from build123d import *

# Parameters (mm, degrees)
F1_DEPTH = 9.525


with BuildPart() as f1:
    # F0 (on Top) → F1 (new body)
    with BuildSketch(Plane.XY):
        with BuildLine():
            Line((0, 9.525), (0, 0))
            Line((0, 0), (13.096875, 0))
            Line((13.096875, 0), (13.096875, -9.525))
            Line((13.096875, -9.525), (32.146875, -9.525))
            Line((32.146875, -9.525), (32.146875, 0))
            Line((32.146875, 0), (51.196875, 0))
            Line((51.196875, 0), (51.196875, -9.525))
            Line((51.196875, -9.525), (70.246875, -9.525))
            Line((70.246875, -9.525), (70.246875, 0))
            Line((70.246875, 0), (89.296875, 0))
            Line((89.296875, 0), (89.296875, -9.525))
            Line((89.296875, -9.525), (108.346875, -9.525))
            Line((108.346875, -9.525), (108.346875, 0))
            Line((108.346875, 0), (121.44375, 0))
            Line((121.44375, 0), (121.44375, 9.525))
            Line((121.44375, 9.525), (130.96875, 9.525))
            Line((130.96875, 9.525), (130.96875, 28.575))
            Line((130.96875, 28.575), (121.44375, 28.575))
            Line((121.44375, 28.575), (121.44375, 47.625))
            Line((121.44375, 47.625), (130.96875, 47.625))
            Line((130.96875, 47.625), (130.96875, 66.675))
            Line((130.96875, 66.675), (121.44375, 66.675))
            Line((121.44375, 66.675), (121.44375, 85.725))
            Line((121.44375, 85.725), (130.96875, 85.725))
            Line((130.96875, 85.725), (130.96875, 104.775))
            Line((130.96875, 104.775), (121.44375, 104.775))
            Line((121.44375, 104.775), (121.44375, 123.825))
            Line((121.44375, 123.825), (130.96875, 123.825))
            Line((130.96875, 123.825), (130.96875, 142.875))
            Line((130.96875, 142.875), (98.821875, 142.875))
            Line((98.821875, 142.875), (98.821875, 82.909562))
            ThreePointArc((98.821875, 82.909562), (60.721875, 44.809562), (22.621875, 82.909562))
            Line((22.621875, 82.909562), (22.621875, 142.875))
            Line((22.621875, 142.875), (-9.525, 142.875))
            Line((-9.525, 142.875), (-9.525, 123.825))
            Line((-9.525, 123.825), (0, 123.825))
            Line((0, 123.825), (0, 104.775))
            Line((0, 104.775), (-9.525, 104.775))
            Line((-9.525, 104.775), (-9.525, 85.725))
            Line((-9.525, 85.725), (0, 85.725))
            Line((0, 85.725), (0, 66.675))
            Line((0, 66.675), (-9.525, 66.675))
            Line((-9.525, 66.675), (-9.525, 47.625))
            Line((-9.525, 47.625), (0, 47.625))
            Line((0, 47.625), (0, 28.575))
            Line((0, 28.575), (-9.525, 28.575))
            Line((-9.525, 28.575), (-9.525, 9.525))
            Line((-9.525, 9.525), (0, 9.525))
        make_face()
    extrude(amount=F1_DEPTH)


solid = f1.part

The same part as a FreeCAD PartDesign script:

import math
import FreeCAD as App
import Part
import Sketcher

V = App.Vector
Q = App.Units.Quantity

doc = App.newDocument("Part")
params = doc.addObject("Spreadsheet::Sheet", "Params")
for row, (alias, value) in enumerate([
    ("sketch1_radius", "1.5 in"),
    ("sketch1_width", "0.75 in"),
    ("sketch1_width2", "0.515625 in"),
    ("pad1_length", "0.375 in"),
], start=1):
    params.set(f"A{row}", alias)
    params.set(f"B{row}", "=" + value)
    params.setAlias(f"B{row}", alias)

body = doc.addObject("PartDesign::Body", "Body")

# Sketch on XY plane
sketch1 = body.newObject("Sketcher::SketchObject", "Sketch")
sketch1.AttachmentSupport = (doc.getObject("XY_Plane"), [""])
sketch1.MapMode = "FlatFace"
sketch1.addGeometry(Part.LineSegment(V(0, 9.525, 0), V(0, 0, 0)), False)
sketch1.addGeometry(Part.LineSegment(V(0, 0, 0), V(13.096875, 0, 0)), False)
sketch1.addGeometry(Part.LineSegment(V(13.096875, 0, 0), V(13.096875, -9.525, 0)), False)
sketch1.addGeometry(Part.LineSegment(V(13.096875, -9.525, 0), V(32.146875, -9.525, 0)), False)
sketch1.addGeometry(Part.LineSegment(V(32.146875, -9.525, 0), V(32.146875, 0, 0)), False)
sketch1.addGeometry(Part.LineSegment(V(32.146875, 0, 0), V(51.196875, 0, 0)), False)
sketch1.addGeometry(Part.LineSegment(V(51.196875, 0, 0), V(51.196875, -9.525, 0)), False)
sketch1.addGeometry(Part.LineSegment(V(51.196875, -9.525, 0), V(70.246875, -9.525, 0)), False)
sketch1.addGeometry(Part.LineSegment(V(70.246875, -9.525, 0), V(70.246875, 0, 0)), False)
sketch1.addGeometry(Part.LineSegment(V(70.246875, 0, 0), V(89.296875, 0, 0)), False)
sketch1.addGeometry(Part.LineSegment(V(89.296875, 0, 0), V(89.296875, -9.525, 0)), False)
sketch1.addGeometry(Part.LineSegment(V(89.296875, -9.525, 0), V(108.346875, -9.525, 0)), False)
sketch1.addGeometry(Part.LineSegment(V(108.346875, -9.525, 0), V(108.346875, 0, 0)), False)
sketch1.addGeometry(Part.LineSegment(V(108.346875, 0, 0), V(121.44375, 0, 0)), False)
sketch1.addGeometry(Part.LineSegment(V(121.44375, 0, 0), V(121.44375, 9.525, 0)), False)
sketch1.addGeometry(Part.LineSegment(V(121.44375, 9.525, 0), V(130.96875, 9.525, 0)), False)
sketch1.addGeometry(Part.LineSegment(V(130.96875, 9.525, 0), V(130.96875, 28.575, 0)), False)
sketch1.addGeometry(Part.LineSegment(V(130.96875, 28.575, 0), V(121.44375, 28.575, 0)), False)
sketch1.addGeometry(Part.LineSegment(V(121.44375, 28.575, 0), V(121.44375, 47.625, 0)), False)
sketch1.addGeometry(Part.LineSegment(V(121.44375, 47.625, 0), V(130.96875, 47.625, 0)), False)
sketch1.addGeometry(Part.LineSegment(V(130.96875, 47.625, 0), V(130.96875, 66.675, 0)), False)
sketch1.addGeometry(Part.LineSegment(V(130.96875, 66.675, 0), V(121.44375, 66.675, 0)), False)
sketch1.addGeometry(Part.LineSegment(V(121.44375, 66.675, 0), V(121.44375, 85.725, 0)), False)
sketch1.addGeometry(Part.LineSegment(V(121.44375, 85.725, 0), V(130.96875, 85.725, 0)), False)
sketch1.addGeometry(Part.LineSegment(V(130.96875, 85.725, 0), V(130.96875, 104.775, 0)), False)
sketch1.addGeometry(Part.LineSegment(V(130.96875, 104.775, 0), V(121.44375, 104.775, 0)), False)
sketch1.addGeometry(Part.LineSegment(V(121.44375, 104.775, 0), V(121.44375, 123.825, 0)), False)
sketch1.addGeometry(Part.LineSegment(V(121.44375, 123.825, 0), V(130.96875, 123.825, 0)), False)
sketch1.addGeometry(Part.LineSegment(V(130.96875, 123.825, 0), V(130.96875, 142.875, 0)), False)
sketch1.addGeometry(Part.LineSegment(V(130.96875, 142.875, 0), V(98.821875, 142.875, 0)), False)
sketch1.addGeometry(Part.LineSegment(V(98.821875, 142.875, 0), V(98.821875, 82.909562, 0)), False)
sketch1.addGeometry(Part.ArcOfCircle(Part.Circle(V(60.721875, 82.909562, 0), V(0, 0, 1), 38.1), math.radians(180), math.radians(360)), False)
sketch1.addGeometry(Part.LineSegment(V(22.621875, 82.909562, 0), V(22.621875, 142.875, 0)), False)
sketch1.addGeometry(Part.LineSegment(V(22.621875, 142.875, 0), V(-9.525, 142.875, 0)), False)
sketch1.addGeometry(Part.LineSegment(V(-9.525, 142.875, 0), V(-9.525, 123.825, 0)), False)
sketch1.addGeometry(Part.LineSegment(V(-9.525, 123.825, 0), V(0, 123.825, 0)), False)
sketch1.addGeometry(Part.LineSegment(V(0, 123.825, 0), V(0, 104.775, 0)), False)
sketch1.addGeometry(Part.LineSegment(V(0, 104.775, 0), V(-9.525, 104.775, 0)), False)
sketch1.addGeometry(Part.LineSegment(V(-9.525, 104.775, 0), V(-9.525, 85.725, 0)), False)
sketch1.addGeometry(Part.LineSegment(V(-9.525, 85.725, 0), V(0, 85.725, 0)), False)
sketch1.addGeometry(Part.LineSegment(V(0, 85.725, 0), V(0, 66.675, 0)), False)
sketch1.addGeometry(Part.LineSegment(V(0, 66.675, 0), V(-9.525, 66.675, 0)), False)
sketch1.addGeometry(Part.LineSegment(V(-9.525, 66.675, 0), V(-9.525, 47.625, 0)), False)
sketch1.addGeometry(Part.LineSegment(V(-9.525, 47.625, 0), V(0, 47.625, 0)), False)
sketch1.addGeometry(Part.LineSegment(V(0, 47.625, 0), V(0, 28.575, 0)), False)
sketch1.addGeometry(Part.LineSegment(V(0, 28.575, 0), V(-9.525, 28.575, 0)), False)
sketch1.addGeometry(Part.LineSegment(V(-9.525, 28.575, 0), V(-9.525, 9.525, 0)), False)
sketch1.addGeometry(Part.LineSegment(V(-9.525, 9.525, 0), V(0, 9.525, 0)), False)
sketch1.addConstraint(Sketcher.Constraint("Coincident", 0, 2, 1, 1))
sketch1.addConstraint(Sketcher.Constraint("Coincident", 1, 2, 2, 1))
sketch1.addConstraint(Sketcher.Constraint("Coincident", 2, 2, 3, 1))
sketch1.addConstraint(Sketcher.Constraint("Coincident", 3, 2, 4, 1))
sketch1.addConstraint(Sketcher.Constraint("Coincident", 4, 2, 5, 1))
sketch1.addConstraint(Sketcher.Constraint("Coincident", 5, 2, 6, 1))
sketch1.addConstraint(Sketcher.Constraint("Coincident", 6, 2, 7, 1))
sketch1.addConstraint(Sketcher.Constraint("Coincident", 7, 2, 8, 1))
sketch1.addConstraint(Sketcher.Constraint("Coincident", 8, 2, 9, 1))
sketch1.addConstraint(Sketcher.Constraint("Coincident", 9, 2, 10, 1))
sketch1.addConstraint(Sketcher.Constraint("Coincident", 10, 2, 11, 1))
sketch1.addConstraint(Sketcher.Constraint("Coincident", 11, 2, 12, 1))
sketch1.addConstraint(Sketcher.Constraint("Coincident", 12, 2, 13, 1))
sketch1.addConstraint(Sketcher.Constraint("Coincident", 13, 2, 14, 1))
sketch1.addConstraint(Sketcher.Constraint("Coincident", 14, 2, 15, 1))
sketch1.addConstraint(Sketcher.Constraint("Coincident", 15, 2, 16, 1))
sketch1.addConstraint(Sketcher.Constraint("Coincident", 16, 2, 17, 1))
sketch1.addConstraint(Sketcher.Constraint("Coincident", 17, 2, 18, 1))
sketch1.addConstraint(Sketcher.Constraint("Coincident", 18, 2, 19, 1))
sketch1.addConstraint(Sketcher.Constraint("Coincident", 19, 2, 20, 1))
sketch1.addConstraint(Sketcher.Constraint("Coincident", 20, 2, 21, 1))
sketch1.addConstraint(Sketcher.Constraint("Coincident", 21, 2, 22, 1))
sketch1.addConstraint(Sketcher.Constraint("Coincident", 22, 2, 23, 1))
sketch1.addConstraint(Sketcher.Constraint("Coincident", 23, 2, 24, 1))
sketch1.addConstraint(Sketcher.Constraint("Coincident", 24, 2, 25, 1))
sketch1.addConstraint(Sketcher.Constraint("Coincident", 25, 2, 26, 1))
sketch1.addConstraint(Sketcher.Constraint("Coincident", 26, 2, 27, 1))
sketch1.addConstraint(Sketcher.Constraint("Coincident", 27, 2, 28, 1))
sketch1.addConstraint(Sketcher.Constraint("Coincident", 28, 2, 29, 1))
sketch1.addConstraint(Sketcher.Constraint("Coincident", 29, 2, 30, 1))
sketch1.addConstraint(Sketcher.Constraint("Tangent", 30, 2, 31, 2))
sketch1.addConstraint(Sketcher.Constraint("Tangent", 31, 1, 32, 1))
sketch1.addConstraint(Sketcher.Constraint("Coincident", 32, 2, 33, 1))
sketch1.addConstraint(Sketcher.Constraint("Coincident", 33, 2, 34, 1))
sketch1.addConstraint(Sketcher.Constraint("Coincident", 34, 2, 35, 1))
sketch1.addConstraint(Sketcher.Constraint("Coincident", 35, 2, 36, 1))
sketch1.addConstraint(Sketcher.Constraint("Coincident", 36, 2, 37, 1))
sketch1.addConstraint(Sketcher.Constraint("Coincident", 37, 2, 38, 1))
sketch1.addConstraint(Sketcher.Constraint("Coincident", 38, 2, 39, 1))
sketch1.addConstraint(Sketcher.Constraint("Coincident", 39, 2, 40, 1))
sketch1.addConstraint(Sketcher.Constraint("Coincident", 40, 2, 41, 1))
sketch1.addConstraint(Sketcher.Constraint("Coincident", 41, 2, 42, 1))
sketch1.addConstraint(Sketcher.Constraint("Coincident", 42, 2, 43, 1))
sketch1.addConstraint(Sketcher.Constraint("Coincident", 43, 2, 44, 1))
sketch1.addConstraint(Sketcher.Constraint("Coincident", 44, 2, 45, 1))
sketch1.addConstraint(Sketcher.Constraint("Coincident", 45, 2, 46, 1))
sketch1.addConstraint(Sketcher.Constraint("Coincident", 46, 2, 47, 1))
sketch1.addConstraint(Sketcher.Constraint("Coincident", 47, 2, 0, 1))
sketch1.addConstraint(Sketcher.Constraint("Vertical", 0))
sketch1.addConstraint(Sketcher.Constraint("Horizontal", 1))
sketch1.addConstraint(Sketcher.Constraint("Vertical", 2))
sketch1.addConstraint(Sketcher.Constraint("Horizontal", 3))
sketch1.addConstraint(Sketcher.Constraint("Vertical", 4))
sketch1.addConstraint(Sketcher.Constraint("Horizontal", 5))
sketch1.addConstraint(Sketcher.Constraint("Vertical", 6))
sketch1.addConstraint(Sketcher.Constraint("Horizontal", 7))
sketch1.addConstraint(Sketcher.Constraint("Vertical", 8))
sketch1.addConstraint(Sketcher.Constraint("Horizontal", 9))
sketch1.addConstraint(Sketcher.Constraint("Vertical", 10))
sketch1.addConstraint(Sketcher.Constraint("Horizontal", 11))
sketch1.addConstraint(Sketcher.Constraint("Vertical", 12))
sketch1.addConstraint(Sketcher.Constraint("Horizontal", 13))
sketch1.addConstraint(Sketcher.Constraint("Vertical", 14))
sketch1.addConstraint(Sketcher.Constraint("Horizontal", 15))
sketch1.addConstraint(Sketcher.Constraint("Vertical", 16))
sketch1.addConstraint(Sketcher.Constraint("Horizontal", 17))
sketch1.addConstraint(Sketcher.Constraint("Vertical", 18))
sketch1.addConstraint(Sketcher.Constraint("Horizontal", 19))
sketch1.addConstraint(Sketcher.Constraint("Vertical", 20))
sketch1.addConstraint(Sketcher.Constraint("Horizontal", 21))
sketch1.addConstraint(Sketcher.Constraint("Vertical", 22))
sketch1.addConstraint(Sketcher.Constraint("Horizontal", 23))
sketch1.addConstraint(Sketcher.Constraint("Vertical", 24))
sketch1.addConstraint(Sketcher.Constraint("Horizontal", 25))
sketch1.addConstraint(Sketcher.Constraint("Vertical", 26))
sketch1.addConstraint(Sketcher.Constraint("Horizontal", 27))
sketch1.addConstraint(Sketcher.Constraint("Vertical", 28))
sketch1.addConstraint(Sketcher.Constraint("Horizontal", 29))
sketch1.addConstraint(Sketcher.Constraint("Vertical", 30))
sketch1.addConstraint(Sketcher.Constraint("Vertical", 32))
sketch1.addConstraint(Sketcher.Constraint("Horizontal", 33))
sketch1.addConstraint(Sketcher.Constraint("Vertical", 34))
sketch1.addConstraint(Sketcher.Constraint("Horizontal", 35))
sketch1.addConstraint(Sketcher.Constraint("Vertical", 36))
sketch1.addConstraint(Sketcher.Constraint("Horizontal", 37))
sketch1.addConstraint(Sketcher.Constraint("Vertical", 38))
sketch1.addConstraint(Sketcher.Constraint("Horizontal", 39))
sketch1.addConstraint(Sketcher.Constraint("Vertical", 40))
sketch1.addConstraint(Sketcher.Constraint("Horizontal", 41))
sketch1.addConstraint(Sketcher.Constraint("Vertical", 42))
sketch1.addConstraint(Sketcher.Constraint("Horizontal", 43))
sketch1.addConstraint(Sketcher.Constraint("Vertical", 44))
sketch1.addConstraint(Sketcher.Constraint("Horizontal", 45))
sketch1.addConstraint(Sketcher.Constraint("Vertical", 46))
sketch1.addConstraint(Sketcher.Constraint("Horizontal", 47))
sketch1.addConstraint(Sketcher.Constraint("Coincident", 0, 2, -1, 1))
sketch1.addConstraint(Sketcher.Constraint("PointOnObject", 4, 2, -1))
sketch1.addConstraint(Sketcher.Constraint("PointOnObject", 8, 2, -1))
sketch1.addConstraint(Sketcher.Constraint("PointOnObject", 12, 2, -1))
sketch1.addConstraint(Sketcher.Constraint("PointOnObject", 35, 2, -2))
sketch1.addConstraint(Sketcher.Constraint("PointOnObject", 39, 2, -2))
sketch1.addConstraint(Sketcher.Constraint("PointOnObject", 43, 2, -2))
sketch1.addConstraint(Sketcher.Constraint("Horizontal", 3, 2, 6, 2))
sketch1.addConstraint(Sketcher.Constraint("Horizontal", 7, 2, 10, 2))
sketch1.addConstraint(Sketcher.Constraint("Horizontal", 29, 2, 32, 2))
sketch1.addConstraint(Sketcher.Constraint("Horizontal", 27, 2, 34, 2))
sketch1.addConstraint(Sketcher.Constraint("Horizontal", 25, 2, 36, 2))
sketch1.addConstraint(Sketcher.Constraint("Horizontal", 23, 2, 38, 2))
sketch1.addConstraint(Sketcher.Constraint("Horizontal", 21, 2, 40, 2))
sketch1.addConstraint(Sketcher.Constraint("Horizontal", 19, 2, 42, 2))
sketch1.addConstraint(Sketcher.Constraint("Horizontal", 17, 2, 44, 2))
sketch1.addConstraint(Sketcher.Constraint("Horizontal", 15, 2, 46, 2))
sketch1.addConstraint(Sketcher.Constraint("Vertical", 14, 2, 17, 2))
sketch1.addConstraint(Sketcher.Constraint("Vertical", 16, 2, 19, 2))
sketch1.addConstraint(Sketcher.Constraint("Vertical", 18, 2, 21, 2))
sketch1.addConstraint(Sketcher.Constraint("Vertical", 20, 2, 23, 2))
sketch1.addConstraint(Sketcher.Constraint("Vertical", 22, 2, 25, 2))
sketch1.addConstraint(Sketcher.Constraint("Vertical", 24, 2, 27, 2))
sketch1.addConstraint(Sketcher.Constraint("Vertical", 34, 2, 37, 2))
sketch1.addConstraint(Sketcher.Constraint("Vertical", 38, 2, 41, 2))
sketch1.addConstraint(Sketcher.Constraint("Vertical", 42, 2, 45, 2))
sketch1.addConstraint(Sketcher.Constraint("Equal", 3, 5))
sketch1.addConstraint(Sketcher.Constraint("Equal", 5, 7))
sketch1.addConstraint(Sketcher.Constraint("Equal", 7, 9))
sketch1.addConstraint(Sketcher.Constraint("Equal", 9, 11))
sketch1.addConstraint(Sketcher.Constraint("Equal", 1, 13))
sketch1.addConstraint(Sketcher.Constraint("Equal", 29, 33))
sketch1.addConstraint(Sketcher.Constraint("Equal", 27, 35))
sketch1.addConstraint(Sketcher.Constraint("Equal", 47, 0))
sketch1.addConstraint(Sketcher.Constraint("Equal", 0, 2))
sketch1.addConstraint(Sketcher.Constraint("Equal", 11, 16))
sketch1.addConstraint(Sketcher.Constraint("Equal", 16, 18))
sketch1.addConstraint(Sketcher.Constraint("Equal", 18, 20))
sketch1.addConstraint(Sketcher.Constraint("Equal", 20, 22))
sketch1.addConstraint(Sketcher.Constraint("Equal", 22, 24))
sketch1.addConstraint(Sketcher.Constraint("Equal", 24, 26))
sketch1.addConstraint(Sketcher.Constraint("Equal", 26, 28))
sketch1.addConstraint(Sketcher.Constraint("Radius", 31, Q("1.5 in")))
sketch1.addConstraint(Sketcher.Constraint("DistanceX", 3, 1, 3, 2, Q("0.75 in")))
sketch1.addConstraint(Sketcher.Constraint("DistanceY", 11, 2, 16, 2, Q("1.5 in")))
sketch1.addConstraint(Sketcher.Constraint("DistanceX", 1, 1, 1, 2, Q("0.515625 in")))
sketch1.addConstraint(Sketcher.Constraint("DistanceY", 30, 2, 30, 1, Q("59.965438 mm")))
sketch1.setExpression("Constraints[137]", "Params.sketch1_radius")
sketch1.setExpression("Constraints[138]", "Params.sketch1_width")
sketch1.setExpression("Constraints[140]", "Params.sketch1_width2")
pad1 = body.newObject("PartDesign::Pad", "Pad")
pad1.Profile = sketch1
pad1.setExpression("Length", "Params.pad1_length")

doc.recompute()
